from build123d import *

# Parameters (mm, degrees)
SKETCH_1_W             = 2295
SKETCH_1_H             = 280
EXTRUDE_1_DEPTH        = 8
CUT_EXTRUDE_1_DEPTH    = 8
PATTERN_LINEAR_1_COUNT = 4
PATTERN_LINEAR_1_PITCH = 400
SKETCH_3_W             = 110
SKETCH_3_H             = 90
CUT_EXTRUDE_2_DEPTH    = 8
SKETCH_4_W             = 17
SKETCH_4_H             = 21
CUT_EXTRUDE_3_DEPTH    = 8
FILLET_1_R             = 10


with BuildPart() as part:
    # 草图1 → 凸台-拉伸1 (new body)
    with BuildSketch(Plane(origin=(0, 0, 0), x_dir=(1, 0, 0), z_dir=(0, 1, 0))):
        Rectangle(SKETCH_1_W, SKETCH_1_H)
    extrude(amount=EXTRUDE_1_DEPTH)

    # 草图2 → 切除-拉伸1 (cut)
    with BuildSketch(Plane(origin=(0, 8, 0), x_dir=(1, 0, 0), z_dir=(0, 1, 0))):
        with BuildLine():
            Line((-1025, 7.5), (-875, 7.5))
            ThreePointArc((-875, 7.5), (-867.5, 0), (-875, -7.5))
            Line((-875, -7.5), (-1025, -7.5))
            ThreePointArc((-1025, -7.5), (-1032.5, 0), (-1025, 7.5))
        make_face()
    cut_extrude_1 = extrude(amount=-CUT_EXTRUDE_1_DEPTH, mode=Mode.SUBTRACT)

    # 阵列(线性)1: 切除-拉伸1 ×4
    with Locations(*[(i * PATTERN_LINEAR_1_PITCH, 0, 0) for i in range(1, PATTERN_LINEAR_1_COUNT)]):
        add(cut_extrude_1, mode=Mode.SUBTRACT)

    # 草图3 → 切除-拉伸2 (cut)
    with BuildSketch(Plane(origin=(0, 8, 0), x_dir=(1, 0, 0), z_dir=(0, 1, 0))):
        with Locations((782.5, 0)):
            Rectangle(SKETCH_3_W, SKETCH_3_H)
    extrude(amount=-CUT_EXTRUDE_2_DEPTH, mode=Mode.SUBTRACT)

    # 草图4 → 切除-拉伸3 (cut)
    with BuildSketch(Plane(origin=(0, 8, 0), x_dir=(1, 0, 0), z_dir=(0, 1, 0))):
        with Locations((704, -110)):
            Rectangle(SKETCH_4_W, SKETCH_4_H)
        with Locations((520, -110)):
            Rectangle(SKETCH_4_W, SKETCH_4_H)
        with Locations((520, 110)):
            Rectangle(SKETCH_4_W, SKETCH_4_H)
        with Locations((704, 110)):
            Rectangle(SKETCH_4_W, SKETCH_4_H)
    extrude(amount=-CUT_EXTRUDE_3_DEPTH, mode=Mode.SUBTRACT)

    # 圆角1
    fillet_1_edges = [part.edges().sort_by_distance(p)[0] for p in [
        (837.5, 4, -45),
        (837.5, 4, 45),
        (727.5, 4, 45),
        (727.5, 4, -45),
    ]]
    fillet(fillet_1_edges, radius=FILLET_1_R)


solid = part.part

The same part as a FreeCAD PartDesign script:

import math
import FreeCAD as App
import Part
import Sketcher
from FreeCAD import Vector


def edges_at(feature, points):
    """Names of the edges that pass closest to the given points."""
    edges = feature.Shape.Edges
    near = lambda p: min(range(len(edges)), key=lambda i: edges[i].distToShape(Part.Vertex(*p))[0])
    return sorted({f"Edge{near(p) + 1}" for p in points})

doc = App.newDocument("Part")
body = doc.addObject("PartDesign::Body", "Body")

# Sketch on XZ plane
sketch1 = body.newObject("Sketcher::SketchObject", "Sketch")
sketch1.AttachmentSupport = (doc.getObject("XZ_Plane"), [""])
sketch1.MapMode = "FlatFace"
sketch1.addGeometry([
    Part.LineSegment(Vector(-1147.5, -140, 0), Vector(-1147.5, 140, 0)),
    Part.LineSegment(Vector(-1147.5, 140, 0), Vector(1147.5, 140, 0)),
    Part.LineSegment(Vector(1147.5, 140, 0), Vector(1147.5, -140, 0)),
    Part.LineSegment(Vector(1147.5, -140, 0), Vector(-1147.5, -140, 0)),
], False)
sketch1.addConstraint([
    Sketcher.Constraint("Coincident", 0, 2, 1, 1),
    Sketcher.Constraint("Coincident", 1, 2, 2, 1),
    Sketcher.Constraint("Coincident", 2, 2, 3, 1),
    Sketcher.Constraint("Coincident", 3, 2, 0, 1),
    Sketcher.Constraint("Vertical", 0),
    Sketcher.Constraint("Horizontal", 1),
    Sketcher.Constraint("Vertical", 2),
    Sketcher.Constraint("Horizontal", 3),
    Sketcher.Constraint("Symmetric", 0, 2, 2, 2, -1, 1),
    Sketcher.Constraint("DistanceX", 1, 1, 1, 2, 2295.0),
    Sketcher.Constraint("DistanceY", 0, 1, 0, 2, 280.0),
])
pad1 = body.newObject("PartDesign::Pad", "Pad")
pad1.Profile = sketch1
pad1.Length = 8
pad1.Reversed = True

# Sketch on XZ plane
sketch2 = body.newObject("Sketcher::SketchObject", "Sketch001")
sketch2.AttachmentSupport = (doc.getObject("XZ_Plane"), [""])
sketch2.MapMode = "FlatFace"
sketch2.AttachmentOffset = App.Placement(Vector(0, 0, -8), App.Rotation())
sketch2.addGeometry([
    Part.LineSegment(Vector(-875, -7.5, 0), Vector(-1025, -7.5, 0)),
    Part.ArcOfCircle(Part.Circle(Vector(-1025, 0, 0), Vector(0, 0, 1), 7.5), math.radians(90), math.radians(270)),
    Part.LineSegment(Vector(-1025, 7.5, 0), Vector(-875, 7.5, 0)),
    Part.ArcOfCircle(Part.Circle(Vector(-875, 0, 0), Vector(0, 0, 1), 7.5), math.radians(-90), math.radians(90)),
], False)
sketch2.addConstraint([
    Sketcher.Constraint("Tangent", 0, 2, 1, 2),
    Sketcher.Constraint("Tangent", 1, 1, 2, 1),
    Sketcher.Constraint("Tangent", 2, 2, 3, 2),
    Sketcher.Constraint("Tangent", 3, 1, 0, 1),
    Sketcher.Constraint("Horizontal", 0),
    Sketcher.Constraint("Horizontal", 2),
    Sketcher.Constraint("PointOnObject", 1, 3, -1),
    Sketcher.Constraint("Radius", 1, 7.5),
    Sketcher.Constraint("DistanceX", 0, 2, 0, 1, 150.0),
    Sketcher.Constraint("DistanceX", 1, 3, -1, 1, 1025.0),
])
pocket1 = body.newObject("PartDesign::Pocket", "Pocket")
pocket1.Profile = sketch2
pocket1.Length = 8
pocket1.Reversed = True
doc.recompute()

linearpattern = body.newObject("PartDesign::LinearPattern", "LinearPattern")
linearpattern.Originals = [pocket1]
linearpattern.Direction = (doc.getObject("X_Axis"), [""])
linearpattern.Mode = "offset"
linearpattern.Offset = 400
linearpattern.Occurrences = 4
body.Tip = linearpattern

# Sketch on XZ plane
sketch3 = body.newObject("Sketcher::SketchObject", "Sketch002")
sketch3.AttachmentSupport = (doc.getObject("XZ_Plane"), [""])
sketch3.MapMode = "FlatFace"
sketch3.AttachmentOffset = App.Placement(Vector(0, 0, -8), App.Rotation())
sketch3.addGeometry([
    Part.LineSegment(Vector(727.5, -45, 0), Vector(727.5, 45, 0)),
    Part.LineSegment(Vector(727.5, 45, 0), Vector(837.5, 45, 0)),
    Part.LineSegment(Vector(837.5, 45, 0), Vector(837.5, -45, 0)),
    Part.LineSegment(Vector(837.5, -45, 0), Vector(727.5, -45, 0)),
], False)
sketch3.addConstraint([
    Sketcher.Constraint("Coincident", 0, 2, 1, 1),
    Sketcher.Constraint("Coincident", 1, 2, 2, 1),
    Sketcher.Constraint("Coincident", 2, 2, 3, 1),
    Sketcher.Constraint("Coincident", 3, 2, 0, 1),
    Sketcher.Constraint("Vertical", 0),
    Sketcher.Constraint("Horizontal", 1),
    Sketcher.Constraint("Vertical", 2),
    Sketcher.Constraint("Horizontal", 3),
    Sketcher.Constraint("DistanceX", 1, 1, 1, 2, 110.0),
    Sketcher.Constraint("DistanceY", 0, 1, 0, 2, 90.0),
    Sketcher.Constraint("DistanceY", -1, 1, 0, 2, 45.0),
    Sketcher.Constraint("DistanceX", -1, 1, 0, 2, 727.5),
])
pocket2 = body.newObject("PartDesign::Pocket", "Pocket001")
pocket2.Profile = sketch3
pocket2.Length = 8
pocket2.Reversed = True

# Sketch on XZ plane
sketch4 = body.newObject("Sketcher::SketchObject", "Sketch003")
sketch4.AttachmentSupport = (doc.getObject("XZ_Plane"), [""])
sketch4.MapMode = "FlatFace"
sketch4.AttachmentOffset = App.Placement(Vector(0, 0, -8), App.Rotation())
sketch4.addGeometry([
    Part.LineSegment(Vector(695.5, 99.5, 0), Vector(695.5, 120.5, 0)),  # 0
    Part.LineSegment(Vector(695.5, 120.5, 0), Vector(712.5, 120.5, 0)),  # 1
    Part.LineSegment(Vector(712.5, 120.5, 0), Vector(712.5, 99.5, 0)),  # 2
    Part.LineSegment(Vector(712.5, 99.5, 0), Vector(695.5, 99.5, 0)),  # 3
    Part.LineSegment(Vector(511.5, 99.5, 0), Vector(511.5, 120.5, 0)),  # 4
    Part.LineSegment(Vector(511.5, 120.5, 0), Vector(528.5, 120.5, 0)),  # 5
    Part.LineSegment(Vector(528.5, 120.5, 0), Vector(528.5, 99.5, 0)),  # 6
    Part.LineSegment(Vector(528.5, 99.5, 0), Vector(511.5, 99.5, 0)),  # 7
    Part.LineSegment(Vector(511.5, -120.5, 0), Vector(511.5, -99.5, 0)),  # 8
    Part.LineSegment(Vector(511.5, -99.5, 0), Vector(528.5, -99.5, 0)),  # 9
    Part.LineSegment(Vector(528.5, -99.5, 0), Vector(528.5, -120.5, 0)),  # 10
    Part.LineSegment(Vector(528.5, -120.5, 0), Vector(511.5, -120.5, 0)),  # 11
    Part.LineSegment(Vector(695.5, -120.5, 0), Vector(695.5, -99.5, 0)),  # 12
    Part.LineSegment(Vector(695.5, -99.5, 0), Vector(712.5, -99.5, 0)),  # 13
    Part.LineSegment(Vector(712.5, -99.5, 0), Vector(712.5, -120.5, 0)),  # 14
    Part.LineSegment(Vector(712.5, -120.5, 0), Vector(695.5, -120.5, 0)),  # 15
], False)
sketch4.addConstraint([
    Sketcher.Constraint("Coincident", 0, 2, 1, 1),
    Sketcher.Constraint("Coincident", 1, 2, 2, 1),
    Sketcher.Constraint("Coincident", 2, 2, 3, 1),
    Sketcher.Constraint("Coincident", 3, 2, 0, 1),
    Sketcher.Constraint("Coincident", 4, 2, 5, 1),
    Sketcher.Constraint("Coincident", 5, 2, 6, 1),
    Sketcher.Constraint("Coincident", 6, 2, 7, 1),
    Sketcher.Constraint("Coincident", 7, 2, 4, 1),
    Sketcher.Constraint("Coincident", 8, 2, 9, 1),
    Sketcher.Constraint("Coincident", 9, 2, 10, 1),
    Sketcher.Constraint("Coincident", 10, 2, 11, 1),
    Sketcher.Constraint("Coincident", 11, 2, 8, 1),
    Sketcher.Constraint("Coincident", 12, 2, 13, 1),
    Sketcher.Constraint("Coincident", 13, 2, 14, 1),
    Sketcher.Constraint("Coincident", 14, 2, 15, 1),
    Sketcher.Constraint("Coincident", 15, 2, 12, 1),
    Sketcher.Constraint("Vertical", 0),
    Sketcher.Constraint("Horizontal", 1),
    Sketcher.Constraint("Vertical", 2),
    Sketcher.Constraint("Horizontal", 3),
    Sketcher.Constraint("Vertical", 4),
    Sketcher.Constraint("Horizontal", 5),
    Sketcher.Constraint("Vertical", 6),
    Sketcher.Constraint("Horizontal", 7),
    Sketcher.Constraint("Vertical", 8),
    Sketcher.Constraint("Horizontal", 9),
    Sketcher.Constraint("Vertical", 10),
    Sketcher.Constraint("Horizontal", 11),
    Sketcher.Constraint("Vertical", 12),
    Sketcher.Constraint("Horizontal", 13),
    Sketcher.Constraint("Vertical", 14),
    Sketcher.Constraint("Horizontal", 15),
    Sketcher.Constraint("Symmetric", 7, 2, 8, 2, -1),
    Sketcher.Constraint("Symmetric", 5, 2, 10, 2, -1),
    Sketcher.Constraint("Symmetric", 3, 2, 12, 2, -1),
    Sketcher.Constraint("Symmetric", 1, 2, 14, 2, -1),
    Sketcher.Constraint("Horizontal", 1, 2, 4, 2),
    Sketcher.Constraint("Horizontal", 3, 2, 6, 2),
    Sketcher.Constraint("Equal", 3, 5),
    Sketcher.Constraint("DistanceX", 1, 1, 1, 2, 17.0),
    Sketcher.Constraint("DistanceY", 0, 1, 0, 2, 21.0),
    Sketcher.Constraint("DistanceX", 4, 2, 0, 2, 184.0),
    Sketcher.Constraint("DistanceY", 8, 2, 7, 2, 199.0),
    Sketcher.Constraint("DistanceX", -1, 1, 0, 2, 695.5),
])
pocket3 = body.newObject("PartDesign::Pocket", "Pocket002")
pocket3.Profile = sketch4
pocket3.Length = 8
pocket3.Reversed = True
doc.recompute()

fillet = body.newObject("PartDesign::Fillet", "Fillet")
fillet.Base = (pocket3, edges_at(pocket3, [
    (837.5, 4, -45),
    (837.5, 4, 45),
    (727.5, 4, 45),
    (727.5, 4, -45),
]))
fillet.Radius = 10

doc.recompute()
